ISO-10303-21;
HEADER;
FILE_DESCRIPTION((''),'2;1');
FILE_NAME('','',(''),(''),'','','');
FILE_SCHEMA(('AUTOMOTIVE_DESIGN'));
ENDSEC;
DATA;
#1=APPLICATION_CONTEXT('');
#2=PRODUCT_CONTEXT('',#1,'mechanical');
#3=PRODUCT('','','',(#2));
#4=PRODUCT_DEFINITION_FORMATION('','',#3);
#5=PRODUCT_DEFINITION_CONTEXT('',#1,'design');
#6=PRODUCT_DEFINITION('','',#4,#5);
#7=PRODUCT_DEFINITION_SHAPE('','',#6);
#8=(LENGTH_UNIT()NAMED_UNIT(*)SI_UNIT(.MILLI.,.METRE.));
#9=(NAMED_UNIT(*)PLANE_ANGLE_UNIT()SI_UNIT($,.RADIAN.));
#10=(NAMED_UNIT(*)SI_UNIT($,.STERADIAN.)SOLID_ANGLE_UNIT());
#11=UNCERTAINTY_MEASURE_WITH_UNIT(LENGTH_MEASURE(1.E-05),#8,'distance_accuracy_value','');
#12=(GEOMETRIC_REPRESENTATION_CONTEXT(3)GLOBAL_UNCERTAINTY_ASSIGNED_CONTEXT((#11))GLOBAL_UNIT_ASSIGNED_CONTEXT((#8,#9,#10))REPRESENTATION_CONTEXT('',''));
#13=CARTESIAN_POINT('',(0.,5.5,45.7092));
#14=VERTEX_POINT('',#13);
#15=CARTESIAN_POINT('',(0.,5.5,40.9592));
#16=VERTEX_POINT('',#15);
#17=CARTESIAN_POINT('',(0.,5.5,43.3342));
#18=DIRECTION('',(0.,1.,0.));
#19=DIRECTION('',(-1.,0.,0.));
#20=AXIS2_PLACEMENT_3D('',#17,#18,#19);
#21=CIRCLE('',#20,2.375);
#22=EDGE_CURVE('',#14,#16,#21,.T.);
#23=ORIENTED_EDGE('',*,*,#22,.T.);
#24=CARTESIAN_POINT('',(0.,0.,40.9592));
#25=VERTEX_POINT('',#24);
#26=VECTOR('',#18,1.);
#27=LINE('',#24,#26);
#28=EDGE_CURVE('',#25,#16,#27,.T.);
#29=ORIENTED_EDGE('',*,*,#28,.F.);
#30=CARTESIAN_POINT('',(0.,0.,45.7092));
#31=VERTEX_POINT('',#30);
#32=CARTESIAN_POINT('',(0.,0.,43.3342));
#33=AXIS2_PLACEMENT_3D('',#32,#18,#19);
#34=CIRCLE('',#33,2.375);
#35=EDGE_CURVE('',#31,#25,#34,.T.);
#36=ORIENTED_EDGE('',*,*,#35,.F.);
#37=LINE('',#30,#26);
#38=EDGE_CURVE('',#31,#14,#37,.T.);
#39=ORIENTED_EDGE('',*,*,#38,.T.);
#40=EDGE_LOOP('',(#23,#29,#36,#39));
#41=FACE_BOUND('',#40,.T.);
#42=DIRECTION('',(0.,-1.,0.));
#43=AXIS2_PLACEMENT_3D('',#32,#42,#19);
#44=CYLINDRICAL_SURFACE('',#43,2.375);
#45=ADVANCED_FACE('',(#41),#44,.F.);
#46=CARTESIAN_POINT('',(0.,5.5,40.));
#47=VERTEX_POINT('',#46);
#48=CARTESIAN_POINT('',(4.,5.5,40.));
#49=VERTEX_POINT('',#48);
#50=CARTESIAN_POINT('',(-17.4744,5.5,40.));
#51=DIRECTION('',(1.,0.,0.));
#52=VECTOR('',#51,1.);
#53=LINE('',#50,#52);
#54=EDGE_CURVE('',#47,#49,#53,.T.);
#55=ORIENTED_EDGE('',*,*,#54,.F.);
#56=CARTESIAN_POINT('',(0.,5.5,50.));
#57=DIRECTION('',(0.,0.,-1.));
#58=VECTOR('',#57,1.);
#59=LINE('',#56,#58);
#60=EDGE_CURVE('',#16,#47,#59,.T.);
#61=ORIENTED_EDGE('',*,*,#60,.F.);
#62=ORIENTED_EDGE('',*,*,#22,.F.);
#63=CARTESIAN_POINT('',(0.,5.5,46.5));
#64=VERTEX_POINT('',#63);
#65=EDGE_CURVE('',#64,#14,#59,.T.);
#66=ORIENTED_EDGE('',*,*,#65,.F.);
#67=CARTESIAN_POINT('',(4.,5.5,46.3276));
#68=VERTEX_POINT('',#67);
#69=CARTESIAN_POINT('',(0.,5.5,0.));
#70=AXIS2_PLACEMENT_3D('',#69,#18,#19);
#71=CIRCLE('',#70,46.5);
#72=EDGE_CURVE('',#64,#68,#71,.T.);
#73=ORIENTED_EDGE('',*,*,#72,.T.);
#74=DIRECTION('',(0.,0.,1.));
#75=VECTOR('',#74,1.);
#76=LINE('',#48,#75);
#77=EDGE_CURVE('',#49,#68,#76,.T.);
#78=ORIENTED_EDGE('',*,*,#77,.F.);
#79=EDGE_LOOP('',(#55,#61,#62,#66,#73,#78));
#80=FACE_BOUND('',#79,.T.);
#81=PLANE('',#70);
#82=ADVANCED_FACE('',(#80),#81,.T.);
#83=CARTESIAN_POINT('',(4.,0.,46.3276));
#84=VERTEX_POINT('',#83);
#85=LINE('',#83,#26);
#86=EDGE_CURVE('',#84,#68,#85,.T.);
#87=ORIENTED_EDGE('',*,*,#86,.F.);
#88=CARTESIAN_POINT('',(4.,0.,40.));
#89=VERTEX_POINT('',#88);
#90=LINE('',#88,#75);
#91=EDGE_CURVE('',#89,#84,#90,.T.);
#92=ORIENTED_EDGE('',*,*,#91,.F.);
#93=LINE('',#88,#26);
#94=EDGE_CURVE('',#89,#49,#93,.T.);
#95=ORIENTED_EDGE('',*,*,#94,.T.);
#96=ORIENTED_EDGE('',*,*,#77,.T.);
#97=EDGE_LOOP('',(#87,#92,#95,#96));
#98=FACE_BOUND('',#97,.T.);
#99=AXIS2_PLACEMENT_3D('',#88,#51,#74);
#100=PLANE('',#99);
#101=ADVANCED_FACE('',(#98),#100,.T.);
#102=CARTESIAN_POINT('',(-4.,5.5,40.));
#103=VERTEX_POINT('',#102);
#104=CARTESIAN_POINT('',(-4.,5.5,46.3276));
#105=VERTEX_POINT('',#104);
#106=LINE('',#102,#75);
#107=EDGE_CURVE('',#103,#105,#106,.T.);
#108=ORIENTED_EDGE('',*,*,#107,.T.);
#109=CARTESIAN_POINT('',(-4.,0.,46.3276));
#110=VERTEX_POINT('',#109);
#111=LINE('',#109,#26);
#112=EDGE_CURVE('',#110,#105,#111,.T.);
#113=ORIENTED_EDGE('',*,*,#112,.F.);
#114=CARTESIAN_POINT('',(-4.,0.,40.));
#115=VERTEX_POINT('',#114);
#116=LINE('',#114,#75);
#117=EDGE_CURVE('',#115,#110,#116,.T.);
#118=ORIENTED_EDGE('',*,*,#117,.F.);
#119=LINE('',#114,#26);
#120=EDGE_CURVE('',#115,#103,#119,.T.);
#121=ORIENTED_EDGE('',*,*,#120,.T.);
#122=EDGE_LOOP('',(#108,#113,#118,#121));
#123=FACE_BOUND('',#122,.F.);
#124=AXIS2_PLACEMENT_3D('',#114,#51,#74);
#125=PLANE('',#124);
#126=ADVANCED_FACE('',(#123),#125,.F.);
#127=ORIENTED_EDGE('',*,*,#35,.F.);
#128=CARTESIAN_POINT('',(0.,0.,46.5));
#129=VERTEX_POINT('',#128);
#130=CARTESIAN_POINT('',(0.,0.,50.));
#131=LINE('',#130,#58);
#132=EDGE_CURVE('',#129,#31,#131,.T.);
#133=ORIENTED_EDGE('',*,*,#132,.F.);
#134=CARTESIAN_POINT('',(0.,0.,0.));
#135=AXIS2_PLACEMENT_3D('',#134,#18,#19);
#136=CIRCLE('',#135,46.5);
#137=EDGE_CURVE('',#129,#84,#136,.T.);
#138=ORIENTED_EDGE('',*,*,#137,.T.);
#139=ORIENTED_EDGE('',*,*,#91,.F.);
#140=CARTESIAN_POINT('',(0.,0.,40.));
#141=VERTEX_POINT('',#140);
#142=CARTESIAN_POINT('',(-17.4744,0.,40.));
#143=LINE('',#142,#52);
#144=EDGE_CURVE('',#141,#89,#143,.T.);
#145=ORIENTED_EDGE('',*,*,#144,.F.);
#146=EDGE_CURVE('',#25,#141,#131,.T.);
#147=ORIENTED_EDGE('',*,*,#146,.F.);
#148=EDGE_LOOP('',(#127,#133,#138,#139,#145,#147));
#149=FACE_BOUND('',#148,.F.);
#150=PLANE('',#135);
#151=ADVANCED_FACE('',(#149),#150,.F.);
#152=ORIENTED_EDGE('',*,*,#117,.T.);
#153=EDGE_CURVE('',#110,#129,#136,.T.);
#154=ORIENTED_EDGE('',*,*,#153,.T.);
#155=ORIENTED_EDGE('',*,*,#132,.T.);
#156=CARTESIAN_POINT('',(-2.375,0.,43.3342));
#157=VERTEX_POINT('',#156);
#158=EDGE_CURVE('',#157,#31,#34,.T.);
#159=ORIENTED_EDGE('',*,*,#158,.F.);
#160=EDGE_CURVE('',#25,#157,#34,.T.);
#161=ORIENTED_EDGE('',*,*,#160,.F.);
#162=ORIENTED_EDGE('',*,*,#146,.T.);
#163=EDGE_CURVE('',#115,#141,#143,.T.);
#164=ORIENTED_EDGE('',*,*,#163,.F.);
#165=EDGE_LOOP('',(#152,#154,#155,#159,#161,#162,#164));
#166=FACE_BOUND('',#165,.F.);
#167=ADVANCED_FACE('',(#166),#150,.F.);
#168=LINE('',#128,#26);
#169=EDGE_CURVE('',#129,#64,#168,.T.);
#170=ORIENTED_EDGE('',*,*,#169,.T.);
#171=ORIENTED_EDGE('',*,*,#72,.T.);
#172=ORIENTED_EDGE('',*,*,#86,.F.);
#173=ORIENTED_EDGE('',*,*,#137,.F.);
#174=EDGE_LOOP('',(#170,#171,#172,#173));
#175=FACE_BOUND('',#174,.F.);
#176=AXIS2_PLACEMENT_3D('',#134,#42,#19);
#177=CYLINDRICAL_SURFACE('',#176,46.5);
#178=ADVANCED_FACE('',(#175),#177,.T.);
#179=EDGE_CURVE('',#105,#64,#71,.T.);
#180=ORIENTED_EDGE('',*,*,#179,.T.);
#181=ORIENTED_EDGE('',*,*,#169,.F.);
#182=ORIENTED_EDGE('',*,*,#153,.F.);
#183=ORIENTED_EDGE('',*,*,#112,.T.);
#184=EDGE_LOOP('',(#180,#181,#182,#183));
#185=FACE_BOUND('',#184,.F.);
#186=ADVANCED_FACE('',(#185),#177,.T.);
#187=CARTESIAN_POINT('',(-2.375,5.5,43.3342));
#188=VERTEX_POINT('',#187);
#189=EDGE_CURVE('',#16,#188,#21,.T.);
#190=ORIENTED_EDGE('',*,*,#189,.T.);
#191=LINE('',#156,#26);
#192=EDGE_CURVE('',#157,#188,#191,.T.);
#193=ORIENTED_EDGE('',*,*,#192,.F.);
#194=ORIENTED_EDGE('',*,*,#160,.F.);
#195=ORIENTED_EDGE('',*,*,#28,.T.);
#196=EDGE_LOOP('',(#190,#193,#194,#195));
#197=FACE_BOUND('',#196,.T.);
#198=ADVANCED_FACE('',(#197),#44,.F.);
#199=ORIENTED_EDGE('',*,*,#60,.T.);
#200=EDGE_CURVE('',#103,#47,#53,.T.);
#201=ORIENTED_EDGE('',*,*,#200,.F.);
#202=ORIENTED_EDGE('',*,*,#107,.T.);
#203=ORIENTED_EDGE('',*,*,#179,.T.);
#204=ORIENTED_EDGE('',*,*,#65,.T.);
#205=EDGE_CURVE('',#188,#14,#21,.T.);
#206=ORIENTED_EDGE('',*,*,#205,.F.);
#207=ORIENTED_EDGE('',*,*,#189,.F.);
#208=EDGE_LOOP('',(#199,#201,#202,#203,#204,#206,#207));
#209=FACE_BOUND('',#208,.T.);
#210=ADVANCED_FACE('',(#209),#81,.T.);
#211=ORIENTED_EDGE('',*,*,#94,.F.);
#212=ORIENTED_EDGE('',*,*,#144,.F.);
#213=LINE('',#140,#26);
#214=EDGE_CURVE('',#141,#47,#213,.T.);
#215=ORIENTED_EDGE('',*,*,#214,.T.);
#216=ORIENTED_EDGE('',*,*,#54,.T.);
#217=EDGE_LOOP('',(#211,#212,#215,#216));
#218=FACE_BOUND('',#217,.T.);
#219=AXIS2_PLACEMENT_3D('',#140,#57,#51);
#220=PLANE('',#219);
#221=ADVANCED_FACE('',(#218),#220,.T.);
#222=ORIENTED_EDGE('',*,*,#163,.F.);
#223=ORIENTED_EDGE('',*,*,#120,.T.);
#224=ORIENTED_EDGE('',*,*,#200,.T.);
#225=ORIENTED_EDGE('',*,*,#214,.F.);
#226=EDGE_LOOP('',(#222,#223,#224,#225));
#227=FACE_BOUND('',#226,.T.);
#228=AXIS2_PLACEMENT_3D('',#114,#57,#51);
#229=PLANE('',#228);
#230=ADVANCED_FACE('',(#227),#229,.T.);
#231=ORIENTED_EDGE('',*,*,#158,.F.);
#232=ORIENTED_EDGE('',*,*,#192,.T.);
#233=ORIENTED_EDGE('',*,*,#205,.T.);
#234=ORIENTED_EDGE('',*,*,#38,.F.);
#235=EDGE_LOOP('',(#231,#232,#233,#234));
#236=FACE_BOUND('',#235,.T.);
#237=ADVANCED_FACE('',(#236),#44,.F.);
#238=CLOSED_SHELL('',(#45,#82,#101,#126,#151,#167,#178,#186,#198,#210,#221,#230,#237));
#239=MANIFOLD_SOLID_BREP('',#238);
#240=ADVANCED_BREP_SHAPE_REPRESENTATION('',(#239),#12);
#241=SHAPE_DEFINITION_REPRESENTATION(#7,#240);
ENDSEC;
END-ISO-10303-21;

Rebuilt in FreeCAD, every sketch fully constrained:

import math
import FreeCAD as App
import Part
import Sketcher
Q = App.Units.Quantity

doc = App.newDocument("Part")
body = doc.addObject("PartDesign::Body", "Body")

sketch1 = doc.addObject("Sketcher::SketchObject", "Sketch")
body.addObject(sketch1)
sketch1.AttachmentSupport = (doc.XZ_Plane, [""])
sketch1.MapMode = "FlatFace"
sketch1.addGeometry(Part.ArcOfCircle(Part.Circle(App.Vector(0, 0, 0), App.Vector(0, 0, 1), 46.5), math.radians(85.07), math.radians(94.93)), False)
sketch1.addGeometry(Part.LineSegment(App.Vector(4, 46.3, 0), App.Vector(4, 40, 0)), False)
sketch1.addGeometry(Part.LineSegment(App.Vector(4, 40, 0), App.Vector(-4, 40, 0)), False)
sketch1.addGeometry(Part.LineSegment(App.Vector(-4, 40, 0), App.Vector(-4, 46.3, 0)), False)
sketch1.addGeometry(Part.Circle(App.Vector(0, 43.3, 0), App.Vector(0, 0, 1), 2.4), False)
sketch1.addConstraint(Sketcher.Constraint("Coincident", 0, 1, 1, 1))
sketch1.addConstraint(Sketcher.Constraint("Coincident", 1, 2, 2, 1))
sketch1.addConstraint(Sketcher.Constraint("Coincident", 2, 2, 3, 1))
sketch1.addConstraint(Sketcher.Constraint("Coincident", 3, 2, 0, 2))
sketch1.addConstraint(Sketcher.Constraint("Vertical", 1))
sketch1.addConstraint(Sketcher.Constraint("Horizontal", 2))
sketch1.addConstraint(Sketcher.Constraint("Vertical", 3))
sketch1.addConstraint(Sketcher.Constraint("Coincident", 0, 3, -1, 1))
sketch1.addConstraint(Sketcher.Constraint("PointOnObject", 4, 3, -2))
sketch1.addConstraint(Sketcher.Constraint("Horizontal", 0, 1, 3, 2))
sketch1.addConstraint(Sketcher.Constraint("Radius", 0, Q("46.5 mm")))
sketch1.addConstraint(Sketcher.Constraint("Diameter", 4, Q("4.75 mm")))
sketch1.addConstraint(Sketcher.Constraint("DistanceX", -1, 1, 0, 1, Q("4 mm")))
sketch1.addConstraint(Sketcher.Constraint("DistanceY", -1, 1, 1, 2, Q("40 mm")))
sketch1.addConstraint(Sketcher.Constraint("DistanceY", -1, 1, 4, 3, Q("43.3342 mm")))
pad1 = doc.addObject("PartDesign::Pad", "Pad")
body.addObject(pad1)
pad1.Profile = sketch1
pad1.Length = 5.5
pad1.Reversed = True

doc.recompute()
